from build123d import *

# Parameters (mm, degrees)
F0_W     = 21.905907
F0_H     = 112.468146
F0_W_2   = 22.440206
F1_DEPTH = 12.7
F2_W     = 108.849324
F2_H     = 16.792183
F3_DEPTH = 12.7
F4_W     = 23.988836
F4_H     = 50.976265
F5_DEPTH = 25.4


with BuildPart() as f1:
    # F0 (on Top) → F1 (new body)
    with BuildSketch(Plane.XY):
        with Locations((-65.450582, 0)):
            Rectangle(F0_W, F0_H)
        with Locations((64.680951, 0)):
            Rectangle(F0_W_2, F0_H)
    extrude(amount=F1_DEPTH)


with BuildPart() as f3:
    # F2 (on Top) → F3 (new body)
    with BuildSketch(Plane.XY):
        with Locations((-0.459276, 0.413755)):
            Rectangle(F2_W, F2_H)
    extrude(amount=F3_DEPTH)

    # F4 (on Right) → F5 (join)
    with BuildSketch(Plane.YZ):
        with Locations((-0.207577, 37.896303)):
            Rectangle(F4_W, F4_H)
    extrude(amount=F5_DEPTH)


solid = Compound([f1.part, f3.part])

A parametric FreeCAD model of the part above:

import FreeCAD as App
import Part
import Sketcher

V = App.Vector
Q = App.Units.Quantity

doc = App.newDocument("Part")
body = doc.addObject("PartDesign::Body", "Body")
body.AllowCompound = True

# Sketch on XY plane
sketch1 = doc.addObject("Sketcher::SketchObject", "Sketch")
body.addObject(sketch1)
sketch1.AttachmentSupport = (doc.XY_Plane, [""])
sketch1.MapMode = "FlatFace"
sketch1.addGeometry([
    Part.LineSegment(V(-76, 56, 0), V(-76, -56, 0)),  # 0
    Part.LineSegment(V(-76, -56, 0), V(-54, -56, 0)),  # 1
    Part.LineSegment(V(-54, -56, 0), V(-54, 56, 0)),  # 2
    Part.LineSegment(V(-54, 56, 0), V(-76, 56, 0)),  # 3
    Part.LineSegment(V(53, 56, 0), V(53, -56, 0)),  # 4
    Part.LineSegment(V(53, -56, 0), V(76, -56, 0)),  # 5
    Part.LineSegment(V(76, -56, 0), V(76, 56, 0)),  # 6
    Part.LineSegment(V(76, 56, 0), V(53, 56, 0)),  # 7
], False)
sketch1.addConstraint([
    Sketcher.Constraint("Coincident", 0, 2, 1, 1),
    Sketcher.Constraint("Coincident", 1, 2, 2, 1),
    Sketcher.Constraint("Coincident", 2, 2, 3, 1),
    Sketcher.Constraint("Coincident", 3, 2, 0, 1),
    Sketcher.Constraint("Coincident", 4, 2, 5, 1),
    Sketcher.Constraint("Coincident", 5, 2, 6, 1),
    Sketcher.Constraint("Coincident", 6, 2, 7, 1),
    Sketcher.Constraint("Coincident", 7, 2, 4, 1),
    Sketcher.Constraint("Vertical", 0),
    Sketcher.Constraint("Horizontal", 1),
    Sketcher.Constraint("Vertical", 2),
    Sketcher.Constraint("Horizontal", 3),
    Sketcher.Constraint("Vertical", 4),
    Sketcher.Constraint("Horizontal", 5),
    Sketcher.Constraint("Vertical", 6),
    Sketcher.Constraint("Horizontal", 7),
    Sketcher.Constraint("Horizontal", 1, 2, 4, 2),
    Sketcher.Constraint("Horizontal", 3, 2, 6, 2),
    Sketcher.Constraint("DistanceX", 1, 1, 1, 2, Q("21.905907 mm")),
    Sketcher.Constraint("DistanceX", 5, 1, 5, 2, Q("22.440206 mm")),
    Sketcher.Constraint("DistanceY", 0, 2, 0, 1, Q("112.468146 mm")),
    Sketcher.Constraint("DistanceX", 1, 2, -1, 1, Q("54.497628 mm")),
    Sketcher.Constraint("DistanceX", 0, 2, 5, 2, Q("152.30459 mm")),
    Sketcher.Constraint("DistanceY", 0, 2, -1, 1, Q("56.234073 mm")),
])
pad1 = doc.addObject("PartDesign::Pad", "Pad")
body.addObject(pad1)
pad1.Profile = sketch1
pad1.Length = Q("0.5 in")
body2 = doc.addObject("PartDesign::Body", "Body001")

# Sketch on XY plane
sketch2 = doc.addObject("Sketcher::SketchObject", "Sketch001")
body2.addObject(sketch2)
sketch2.AttachmentSupport = (doc.getObject("XY_Plane001"), [""])
sketch2.MapMode = "FlatFace"
sketch2.addGeometry([
    Part.LineSegment(V(-55, 9, 0), V(-55, -8, 0)),
    Part.LineSegment(V(-55, -8, 0), V(54, -8, 0)),
    Part.LineSegment(V(54, -8, 0), V(54, 9, 0)),
    Part.LineSegment(V(54, 9, 0), V(-55, 9, 0)),
], False)
sketch2.addConstraint([
    Sketcher.Constraint("Coincident", 0, 2, 1, 1),
    Sketcher.Constraint("Coincident", 1, 2, 2, 1),
    Sketcher.Constraint("Coincident", 2, 2, 3, 1),
    Sketcher.Constraint("Coincident", 3, 2, 0, 1),
    Sketcher.Constraint("Vertical", 0),
    Sketcher.Constraint("Horizontal", 1),
    Sketcher.Constraint("Vertical", 2),
    Sketcher.Constraint("Horizontal", 3),
    Sketcher.Constraint("DistanceX", 1, 1, 1, 2, Q("108.849324 mm")),
    Sketcher.Constraint("DistanceY", 0, 2, 0, 1, Q("16.792183 mm")),
    Sketcher.Constraint("DistanceX", 0, 2, -1, 1, Q("54.883938 mm")),
    Sketcher.Constraint("DistanceY", 0, 2, -1, 1, Q("7.982336 mm")),
])
pad2 = doc.addObject("PartDesign::Pad", "Pad001")
body2.addObject(pad2)
pad2.Profile = sketch2
pad2.Length = Q("0.5 in")

# Sketch on YZ plane
sketch3 = doc.addObject("Sketcher::SketchObject", "Sketch002")
body2.addObject(sketch3)
sketch3.AttachmentSupport = (doc.getObject("YZ_Plane001"), [""])
sketch3.MapMode = "FlatFace"
sketch3.addGeometry([
    Part.LineSegment(V(-12, 63, 0), V(-12, 12, 0)),
    Part.LineSegment(V(-12, 12, 0), V(12, 12, 0)),
    Part.LineSegment(V(12, 12, 0), V(12, 63, 0)),
    Part.LineSegment(V(12, 63, 0), V(-12, 63, 0)),
], False)
sketch3.addConstraint([
    Sketcher.Constraint("Coincident", 0, 2, 1, 1),
    Sketcher.Constraint("Coincident", 1, 2, 2, 1),
    Sketcher.Constraint("Coincident", 2, 2, 3, 1),
    Sketcher.Constraint("Coincident", 3, 2, 0, 1),
    Sketcher.Constraint("Vertical", 0),
    Sketcher.Constraint("Horizontal", 1),
    Sketcher.Constraint("Vertical", 2),
    Sketcher.Constraint("Horizontal", 3),
    Sketcher.Constraint("DistanceX", 1, 1, 1, 2, Q("23.988836 mm")),
    Sketcher.Constraint("DistanceY", 0, 2, 0, 1, Q("50.976265 mm")),
    Sketcher.Constraint("DistanceY", -1, 1, 0, 2, Q("12.408171 mm")),
    Sketcher.Constraint("DistanceX", -1, 1, 1, 2, Q("11.786841 mm")),
])
pad3 = doc.addObject("PartDesign::Pad", "Pad002")
body2.addObject(pad3)
pad3.Profile = sketch3
pad3.Length = Q("1 in")

doc.recompute()
